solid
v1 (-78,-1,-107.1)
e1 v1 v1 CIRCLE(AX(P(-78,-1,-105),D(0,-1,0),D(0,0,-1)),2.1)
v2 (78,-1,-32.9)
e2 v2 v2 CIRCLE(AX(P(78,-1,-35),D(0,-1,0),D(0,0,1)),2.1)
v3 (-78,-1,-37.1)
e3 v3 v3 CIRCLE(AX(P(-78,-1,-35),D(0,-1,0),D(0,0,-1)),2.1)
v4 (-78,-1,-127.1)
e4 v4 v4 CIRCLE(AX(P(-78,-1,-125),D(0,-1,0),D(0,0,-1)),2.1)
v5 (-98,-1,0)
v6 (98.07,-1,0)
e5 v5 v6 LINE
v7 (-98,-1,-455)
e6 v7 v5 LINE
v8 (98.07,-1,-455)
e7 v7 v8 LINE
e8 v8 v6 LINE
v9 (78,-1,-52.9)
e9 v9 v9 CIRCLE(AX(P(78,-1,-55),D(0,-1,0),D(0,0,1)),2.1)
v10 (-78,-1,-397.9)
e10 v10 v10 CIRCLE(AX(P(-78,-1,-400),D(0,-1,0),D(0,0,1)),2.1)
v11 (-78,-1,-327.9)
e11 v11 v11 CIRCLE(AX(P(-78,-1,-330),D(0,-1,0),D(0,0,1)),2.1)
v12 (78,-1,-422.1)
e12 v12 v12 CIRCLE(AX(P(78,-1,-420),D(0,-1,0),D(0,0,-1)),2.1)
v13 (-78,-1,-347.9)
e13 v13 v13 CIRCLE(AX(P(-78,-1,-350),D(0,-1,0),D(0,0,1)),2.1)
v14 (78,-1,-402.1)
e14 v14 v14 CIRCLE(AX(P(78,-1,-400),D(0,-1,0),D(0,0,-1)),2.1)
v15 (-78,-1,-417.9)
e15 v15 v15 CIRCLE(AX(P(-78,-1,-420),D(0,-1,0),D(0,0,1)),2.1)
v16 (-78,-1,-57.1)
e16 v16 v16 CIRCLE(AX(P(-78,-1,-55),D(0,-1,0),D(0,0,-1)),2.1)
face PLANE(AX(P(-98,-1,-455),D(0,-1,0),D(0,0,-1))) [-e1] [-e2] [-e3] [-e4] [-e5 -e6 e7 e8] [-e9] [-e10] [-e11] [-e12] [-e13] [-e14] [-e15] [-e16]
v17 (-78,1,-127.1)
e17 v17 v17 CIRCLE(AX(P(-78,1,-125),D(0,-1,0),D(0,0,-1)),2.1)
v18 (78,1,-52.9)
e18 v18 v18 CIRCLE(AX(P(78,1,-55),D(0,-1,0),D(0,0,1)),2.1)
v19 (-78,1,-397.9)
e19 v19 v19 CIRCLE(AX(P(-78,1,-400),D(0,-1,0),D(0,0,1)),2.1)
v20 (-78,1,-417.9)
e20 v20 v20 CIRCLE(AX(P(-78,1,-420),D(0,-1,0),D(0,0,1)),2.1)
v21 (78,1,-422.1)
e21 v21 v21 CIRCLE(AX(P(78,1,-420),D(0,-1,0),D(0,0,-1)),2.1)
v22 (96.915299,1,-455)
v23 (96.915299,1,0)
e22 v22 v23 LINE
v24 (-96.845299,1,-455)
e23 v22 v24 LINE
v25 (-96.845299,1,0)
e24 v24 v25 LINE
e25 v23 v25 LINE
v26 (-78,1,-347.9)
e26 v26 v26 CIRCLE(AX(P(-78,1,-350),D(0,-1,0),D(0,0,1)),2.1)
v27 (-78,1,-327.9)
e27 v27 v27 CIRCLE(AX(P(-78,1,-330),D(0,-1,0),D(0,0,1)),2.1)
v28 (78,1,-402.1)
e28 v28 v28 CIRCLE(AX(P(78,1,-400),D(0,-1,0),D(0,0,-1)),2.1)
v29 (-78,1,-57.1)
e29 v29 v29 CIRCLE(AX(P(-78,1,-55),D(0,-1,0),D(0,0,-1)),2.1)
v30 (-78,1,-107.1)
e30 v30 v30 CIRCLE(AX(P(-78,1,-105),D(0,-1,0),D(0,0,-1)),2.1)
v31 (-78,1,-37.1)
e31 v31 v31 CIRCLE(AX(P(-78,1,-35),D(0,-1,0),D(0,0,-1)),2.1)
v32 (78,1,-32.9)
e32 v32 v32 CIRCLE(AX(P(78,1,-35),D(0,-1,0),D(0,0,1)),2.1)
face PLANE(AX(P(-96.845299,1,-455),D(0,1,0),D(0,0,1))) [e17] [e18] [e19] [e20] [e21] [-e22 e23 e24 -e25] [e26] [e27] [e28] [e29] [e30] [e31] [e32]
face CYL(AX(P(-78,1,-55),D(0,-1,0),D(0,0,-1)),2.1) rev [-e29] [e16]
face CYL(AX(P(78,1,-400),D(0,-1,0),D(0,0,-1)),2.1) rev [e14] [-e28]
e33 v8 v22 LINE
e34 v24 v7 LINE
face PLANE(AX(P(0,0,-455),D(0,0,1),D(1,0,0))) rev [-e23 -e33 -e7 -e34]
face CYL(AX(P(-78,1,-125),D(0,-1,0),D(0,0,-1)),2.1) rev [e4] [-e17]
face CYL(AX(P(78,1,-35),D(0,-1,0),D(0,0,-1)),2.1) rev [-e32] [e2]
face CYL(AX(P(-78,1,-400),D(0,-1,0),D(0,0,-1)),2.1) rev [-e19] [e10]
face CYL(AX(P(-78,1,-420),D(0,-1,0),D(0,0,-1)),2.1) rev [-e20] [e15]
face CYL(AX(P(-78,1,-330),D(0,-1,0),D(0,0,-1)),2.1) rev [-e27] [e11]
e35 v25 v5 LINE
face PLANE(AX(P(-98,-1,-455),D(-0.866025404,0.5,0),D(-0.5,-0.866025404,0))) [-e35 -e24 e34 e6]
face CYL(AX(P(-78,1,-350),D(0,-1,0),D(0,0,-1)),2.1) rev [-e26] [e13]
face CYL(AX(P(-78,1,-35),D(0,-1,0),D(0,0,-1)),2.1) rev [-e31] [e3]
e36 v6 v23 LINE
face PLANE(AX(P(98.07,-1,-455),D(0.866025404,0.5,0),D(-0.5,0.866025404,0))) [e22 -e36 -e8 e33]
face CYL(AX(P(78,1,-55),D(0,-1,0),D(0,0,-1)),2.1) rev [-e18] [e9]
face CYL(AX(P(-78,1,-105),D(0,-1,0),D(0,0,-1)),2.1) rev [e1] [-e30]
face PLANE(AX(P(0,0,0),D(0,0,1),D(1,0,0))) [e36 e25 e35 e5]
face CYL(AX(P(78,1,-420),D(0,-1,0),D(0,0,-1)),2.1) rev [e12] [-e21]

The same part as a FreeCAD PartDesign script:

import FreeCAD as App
import Part
import Sketcher

V = App.Vector
Q = App.Units.Quantity


def add_polygon(sketch, points):
    """Adds a closed chain of lines whose ends are joined by coincident constraints."""
    first, n = sketch.GeometryCount, len(points)
    for a, b in zip(points, points[1:] + points[:1]):
        sketch.addGeometry(Part.LineSegment(App.Vector(*a, 0), App.Vector(*b, 0)), False)
    for i in range(n):
        sketch.addConstraint(Sketcher.Constraint("Coincident", first + i, 2, first + (i + 1) % n, 1))

doc = App.newDocument("Part")
body = doc.addObject("PartDesign::Body", "Body")

sketch1 = body.newObject("Sketcher::SketchObject", "Sketch")
sketch1.AttachmentSupport = (doc.getObject("XY_Plane"), [""])
sketch1.MapMode = "FlatFace"
add_polygon(sketch1, [(-96.8, 1), (-98, -1), (98.1, -1), (96.9, 1)])
sketch1.addConstraint([
    Sketcher.Constraint("Horizontal", 1),
    Sketcher.Constraint("Horizontal", 3),
    Sketcher.Constraint("Equal", 0, 2),
    Sketcher.Constraint("Angle", 0, Q("-120 deg")),
    Sketcher.Constraint("DistanceX", 0, 2, -1, 1, 98.0),
    Sketcher.Constraint("DistanceY", 0, 2, -1, 1, 1.0),
    Sketcher.Constraint("DistanceY", -1, 1, 2, 2, 1.0),
    Sketcher.Constraint("DistanceX", 1, 1, 1, 2, 196.07),
])
pad1 = body.newObject("PartDesign::Pad", "Pad")
pad1.Profile = sketch1
pad1.Length = 455
pad1.Reversed = True

sketch2 = body.newObject("Sketcher::SketchObject", "Sketch001")
sketch2.AttachmentSupport = (doc.getObject("XZ_Plane"), [""])
sketch2.MapMode = "FlatFace"
sketch2.AttachmentOffset = App.Placement(V(0, 0, 1), App.Rotation())
sketch2.addGeometry([
    Part.Circle(V(-78, -35, 0), V(0, 0, 1), 2.1),
    Part.Circle(V(-78, -55, 0), V(0, 0, 1), 2.1),
    Part.Circle(V(78, -55, 0), V(0, 0, 1), 2.1),
    Part.Circle(V(78, -35, 0), V(0, 0, 1), 2.1),
    Part.Circle(V(78, -420, 0), V(0, 0, 1), 2.1),
    Part.Circle(V(78, -400, 0), V(0, 0, 1), 2.1),
    Part.Circle(V(-78, -400, 0), V(0, 0, 1), 2.1),
    Part.Circle(V(-78, -420, 0), V(0, 0, 1), 2.1),
    Part.Circle(V(-78, -105, 0), V(0, 0, 1), 2.1),
    Part.Circle(V(-78, -125, 0), V(0, 0, 1), 2.1),
    Part.Circle(V(-78, -350, 0), V(0, 0, 1), 2.1),
    Part.Circle(V(-78, -330, 0), V(0, 0, 1), 2.1),
], False)
sketch2.addConstraint([
    Sketcher.Constraint("Equal", 0, 1),
    Sketcher.Constraint("Equal", 1, 2),
    Sketcher.Constraint("Equal", 2, 3),
    Sketcher.Constraint("Equal", 3, 4),
    Sketcher.Constraint("Equal", 4, 5),
    Sketcher.Constraint("Equal", 5, 6),
    Sketcher.Constraint("Equal", 6, 7),
    Sketcher.Constraint("Equal", 7, 8),
    Sketcher.Constraint("Equal", 8, 9),
    Sketcher.Constraint("Equal", 9, 10),
    Sketcher.Constraint("Equal", 10, 11),
    Sketcher.Constraint("Symmetric", 1, 3, 2, 3, -2),
    Sketcher.Constraint("Symmetric", 0, 3, 3, 3, -2),
    Sketcher.Constraint("Symmetric", 5, 3, 6, 3, -2),
    Sketcher.Constraint("Symmetric", 4, 3, 7, 3, -2),
    Sketcher.Constraint("Vertical", 0, 3, 1, 3),
    Sketcher.Constraint("Vertical", 3, 3, 4, 3),
    Sketcher.Constraint("Vertical", 4, 3, 5, 3),
    Sketcher.Constraint("Vertical", 7, 3, 8, 3),
    Sketcher.Constraint("Vertical", 8, 3, 9, 3),
    Sketcher.Constraint("Vertical", 9, 3, 10, 3),
    Sketcher.Constraint("Vertical", 10, 3, 11, 3),
    Sketcher.Constraint("Diameter", 0, 4.2),
    Sketcher.Constraint("DistanceX", 0, 3, -1, 1, 78.0),
    Sketcher.Constraint("DistanceY", 0, 3, -1, 1, 35.0),
    Sketcher.Constraint("DistanceY", 1, 3, -1, 1, 55.0),
    Sketcher.Constraint("DistanceY", 4, 3, -1, 1, 420.0),
    Sketcher.Constraint("DistanceY", 5, 3, -1, 1, 400.0),
    Sketcher.Constraint("DistanceY", 8, 3, -1, 1, 105.0),
    Sketcher.Constraint("DistanceY", 9, 3, -1, 1, 125.0),
    Sketcher.Constraint("DistanceY", 10, 3, -1, 1, 350.0),
    Sketcher.Constraint("DistanceY", 11, 3, -1, 1, 330.0),
])
pocket1 = body.newObject("PartDesign::Pocket", "Pocket")
pocket1.Profile = sketch2
pocket1.Type = "ThroughAll"

doc.recompute()
